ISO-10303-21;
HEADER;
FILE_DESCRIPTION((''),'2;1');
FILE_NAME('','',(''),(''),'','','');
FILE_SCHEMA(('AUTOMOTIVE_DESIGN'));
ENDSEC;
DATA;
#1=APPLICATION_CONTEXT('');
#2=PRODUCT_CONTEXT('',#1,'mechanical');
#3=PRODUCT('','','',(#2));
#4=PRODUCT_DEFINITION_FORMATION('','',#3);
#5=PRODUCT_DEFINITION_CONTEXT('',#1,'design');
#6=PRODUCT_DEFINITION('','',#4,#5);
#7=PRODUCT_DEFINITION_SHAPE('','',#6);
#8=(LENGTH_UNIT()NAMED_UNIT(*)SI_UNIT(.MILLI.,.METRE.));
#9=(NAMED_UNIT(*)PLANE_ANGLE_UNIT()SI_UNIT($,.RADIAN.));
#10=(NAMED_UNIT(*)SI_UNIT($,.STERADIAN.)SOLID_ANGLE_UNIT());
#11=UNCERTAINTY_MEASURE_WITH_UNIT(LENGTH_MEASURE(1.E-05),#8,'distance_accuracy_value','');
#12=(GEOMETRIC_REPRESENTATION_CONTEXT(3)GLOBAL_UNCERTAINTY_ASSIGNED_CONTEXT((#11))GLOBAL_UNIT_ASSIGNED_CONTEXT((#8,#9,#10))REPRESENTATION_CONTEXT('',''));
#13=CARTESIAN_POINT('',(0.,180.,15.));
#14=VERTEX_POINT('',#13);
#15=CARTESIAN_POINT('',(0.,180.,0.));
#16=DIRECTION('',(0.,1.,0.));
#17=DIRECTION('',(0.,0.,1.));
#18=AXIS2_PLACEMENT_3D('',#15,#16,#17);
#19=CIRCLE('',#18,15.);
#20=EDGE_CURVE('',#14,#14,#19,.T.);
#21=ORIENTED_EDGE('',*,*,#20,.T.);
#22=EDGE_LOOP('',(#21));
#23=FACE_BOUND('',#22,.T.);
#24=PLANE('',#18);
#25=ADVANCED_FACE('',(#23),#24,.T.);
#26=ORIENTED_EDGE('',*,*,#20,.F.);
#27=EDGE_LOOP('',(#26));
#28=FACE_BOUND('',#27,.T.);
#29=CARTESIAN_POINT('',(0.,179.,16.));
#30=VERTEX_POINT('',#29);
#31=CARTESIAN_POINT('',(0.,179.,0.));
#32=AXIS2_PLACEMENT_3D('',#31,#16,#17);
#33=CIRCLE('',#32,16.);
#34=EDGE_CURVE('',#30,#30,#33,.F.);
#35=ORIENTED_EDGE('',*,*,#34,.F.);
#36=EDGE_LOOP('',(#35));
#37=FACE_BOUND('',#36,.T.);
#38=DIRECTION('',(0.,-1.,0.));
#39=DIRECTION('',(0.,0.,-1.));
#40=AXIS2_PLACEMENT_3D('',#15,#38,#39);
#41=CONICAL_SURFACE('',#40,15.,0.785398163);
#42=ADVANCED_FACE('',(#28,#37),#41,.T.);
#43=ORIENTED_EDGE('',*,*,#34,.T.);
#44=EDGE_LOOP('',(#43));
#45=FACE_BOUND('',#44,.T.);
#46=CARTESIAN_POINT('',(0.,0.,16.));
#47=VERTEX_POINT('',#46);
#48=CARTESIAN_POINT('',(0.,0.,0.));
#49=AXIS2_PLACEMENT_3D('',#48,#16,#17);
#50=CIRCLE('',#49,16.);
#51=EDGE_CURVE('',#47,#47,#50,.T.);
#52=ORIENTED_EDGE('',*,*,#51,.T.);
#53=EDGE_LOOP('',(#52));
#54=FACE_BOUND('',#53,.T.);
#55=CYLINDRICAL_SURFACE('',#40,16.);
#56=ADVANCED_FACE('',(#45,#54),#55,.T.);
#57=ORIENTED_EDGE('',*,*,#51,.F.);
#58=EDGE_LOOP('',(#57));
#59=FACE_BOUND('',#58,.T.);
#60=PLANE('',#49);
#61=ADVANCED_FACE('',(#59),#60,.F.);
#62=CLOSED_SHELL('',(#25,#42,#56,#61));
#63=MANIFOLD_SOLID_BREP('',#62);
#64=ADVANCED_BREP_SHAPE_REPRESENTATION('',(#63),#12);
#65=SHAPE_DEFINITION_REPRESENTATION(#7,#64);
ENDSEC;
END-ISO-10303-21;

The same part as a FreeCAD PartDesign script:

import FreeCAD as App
import Part
import Sketcher


def edges_at(feature, points):
    """Names of the edges that pass closest to the given points."""
    edges = feature.Shape.Edges
    near = lambda p: min(range(len(edges)), key=lambda i: edges[i].distToShape(Part.Vertex(*p))[0])
    return sorted({f"Edge{near(p) + 1}" for p in points})

doc = App.newDocument("Part")
body = doc.addObject("PartDesign::Body", "Body")

sketch1 = doc.addObject("Sketcher::SketchObject", "Sketch")
body.addObject(sketch1)
sketch1.AttachmentSupport = (doc.XZ_Plane, [""])
sketch1.MapMode = "FlatFace"
sketch1.addGeometry(Part.Circle(App.Vector(0, 0, 0), App.Vector(0, 0, 1), 16), False)
sketch1.addConstraint(Sketcher.Constraint("Coincident", 0, 3, -1, 1))
sketch1.addConstraint(Sketcher.Constraint("Diameter", 0, 32.0))
pad1 = doc.addObject("PartDesign::Pad", "Pad")
body.addObject(pad1)
pad1.Profile = sketch1
pad1.Length = 180
pad1.Reversed = True
doc.recompute()

chamfer = doc.addObject("PartDesign::Chamfer", "Chamfer")
body.addObject(chamfer)
chamfer.Base = (pad1, edges_at(pad1, [(-16, 180, 0)]))
chamfer.Size = 1

doc.recompute()
